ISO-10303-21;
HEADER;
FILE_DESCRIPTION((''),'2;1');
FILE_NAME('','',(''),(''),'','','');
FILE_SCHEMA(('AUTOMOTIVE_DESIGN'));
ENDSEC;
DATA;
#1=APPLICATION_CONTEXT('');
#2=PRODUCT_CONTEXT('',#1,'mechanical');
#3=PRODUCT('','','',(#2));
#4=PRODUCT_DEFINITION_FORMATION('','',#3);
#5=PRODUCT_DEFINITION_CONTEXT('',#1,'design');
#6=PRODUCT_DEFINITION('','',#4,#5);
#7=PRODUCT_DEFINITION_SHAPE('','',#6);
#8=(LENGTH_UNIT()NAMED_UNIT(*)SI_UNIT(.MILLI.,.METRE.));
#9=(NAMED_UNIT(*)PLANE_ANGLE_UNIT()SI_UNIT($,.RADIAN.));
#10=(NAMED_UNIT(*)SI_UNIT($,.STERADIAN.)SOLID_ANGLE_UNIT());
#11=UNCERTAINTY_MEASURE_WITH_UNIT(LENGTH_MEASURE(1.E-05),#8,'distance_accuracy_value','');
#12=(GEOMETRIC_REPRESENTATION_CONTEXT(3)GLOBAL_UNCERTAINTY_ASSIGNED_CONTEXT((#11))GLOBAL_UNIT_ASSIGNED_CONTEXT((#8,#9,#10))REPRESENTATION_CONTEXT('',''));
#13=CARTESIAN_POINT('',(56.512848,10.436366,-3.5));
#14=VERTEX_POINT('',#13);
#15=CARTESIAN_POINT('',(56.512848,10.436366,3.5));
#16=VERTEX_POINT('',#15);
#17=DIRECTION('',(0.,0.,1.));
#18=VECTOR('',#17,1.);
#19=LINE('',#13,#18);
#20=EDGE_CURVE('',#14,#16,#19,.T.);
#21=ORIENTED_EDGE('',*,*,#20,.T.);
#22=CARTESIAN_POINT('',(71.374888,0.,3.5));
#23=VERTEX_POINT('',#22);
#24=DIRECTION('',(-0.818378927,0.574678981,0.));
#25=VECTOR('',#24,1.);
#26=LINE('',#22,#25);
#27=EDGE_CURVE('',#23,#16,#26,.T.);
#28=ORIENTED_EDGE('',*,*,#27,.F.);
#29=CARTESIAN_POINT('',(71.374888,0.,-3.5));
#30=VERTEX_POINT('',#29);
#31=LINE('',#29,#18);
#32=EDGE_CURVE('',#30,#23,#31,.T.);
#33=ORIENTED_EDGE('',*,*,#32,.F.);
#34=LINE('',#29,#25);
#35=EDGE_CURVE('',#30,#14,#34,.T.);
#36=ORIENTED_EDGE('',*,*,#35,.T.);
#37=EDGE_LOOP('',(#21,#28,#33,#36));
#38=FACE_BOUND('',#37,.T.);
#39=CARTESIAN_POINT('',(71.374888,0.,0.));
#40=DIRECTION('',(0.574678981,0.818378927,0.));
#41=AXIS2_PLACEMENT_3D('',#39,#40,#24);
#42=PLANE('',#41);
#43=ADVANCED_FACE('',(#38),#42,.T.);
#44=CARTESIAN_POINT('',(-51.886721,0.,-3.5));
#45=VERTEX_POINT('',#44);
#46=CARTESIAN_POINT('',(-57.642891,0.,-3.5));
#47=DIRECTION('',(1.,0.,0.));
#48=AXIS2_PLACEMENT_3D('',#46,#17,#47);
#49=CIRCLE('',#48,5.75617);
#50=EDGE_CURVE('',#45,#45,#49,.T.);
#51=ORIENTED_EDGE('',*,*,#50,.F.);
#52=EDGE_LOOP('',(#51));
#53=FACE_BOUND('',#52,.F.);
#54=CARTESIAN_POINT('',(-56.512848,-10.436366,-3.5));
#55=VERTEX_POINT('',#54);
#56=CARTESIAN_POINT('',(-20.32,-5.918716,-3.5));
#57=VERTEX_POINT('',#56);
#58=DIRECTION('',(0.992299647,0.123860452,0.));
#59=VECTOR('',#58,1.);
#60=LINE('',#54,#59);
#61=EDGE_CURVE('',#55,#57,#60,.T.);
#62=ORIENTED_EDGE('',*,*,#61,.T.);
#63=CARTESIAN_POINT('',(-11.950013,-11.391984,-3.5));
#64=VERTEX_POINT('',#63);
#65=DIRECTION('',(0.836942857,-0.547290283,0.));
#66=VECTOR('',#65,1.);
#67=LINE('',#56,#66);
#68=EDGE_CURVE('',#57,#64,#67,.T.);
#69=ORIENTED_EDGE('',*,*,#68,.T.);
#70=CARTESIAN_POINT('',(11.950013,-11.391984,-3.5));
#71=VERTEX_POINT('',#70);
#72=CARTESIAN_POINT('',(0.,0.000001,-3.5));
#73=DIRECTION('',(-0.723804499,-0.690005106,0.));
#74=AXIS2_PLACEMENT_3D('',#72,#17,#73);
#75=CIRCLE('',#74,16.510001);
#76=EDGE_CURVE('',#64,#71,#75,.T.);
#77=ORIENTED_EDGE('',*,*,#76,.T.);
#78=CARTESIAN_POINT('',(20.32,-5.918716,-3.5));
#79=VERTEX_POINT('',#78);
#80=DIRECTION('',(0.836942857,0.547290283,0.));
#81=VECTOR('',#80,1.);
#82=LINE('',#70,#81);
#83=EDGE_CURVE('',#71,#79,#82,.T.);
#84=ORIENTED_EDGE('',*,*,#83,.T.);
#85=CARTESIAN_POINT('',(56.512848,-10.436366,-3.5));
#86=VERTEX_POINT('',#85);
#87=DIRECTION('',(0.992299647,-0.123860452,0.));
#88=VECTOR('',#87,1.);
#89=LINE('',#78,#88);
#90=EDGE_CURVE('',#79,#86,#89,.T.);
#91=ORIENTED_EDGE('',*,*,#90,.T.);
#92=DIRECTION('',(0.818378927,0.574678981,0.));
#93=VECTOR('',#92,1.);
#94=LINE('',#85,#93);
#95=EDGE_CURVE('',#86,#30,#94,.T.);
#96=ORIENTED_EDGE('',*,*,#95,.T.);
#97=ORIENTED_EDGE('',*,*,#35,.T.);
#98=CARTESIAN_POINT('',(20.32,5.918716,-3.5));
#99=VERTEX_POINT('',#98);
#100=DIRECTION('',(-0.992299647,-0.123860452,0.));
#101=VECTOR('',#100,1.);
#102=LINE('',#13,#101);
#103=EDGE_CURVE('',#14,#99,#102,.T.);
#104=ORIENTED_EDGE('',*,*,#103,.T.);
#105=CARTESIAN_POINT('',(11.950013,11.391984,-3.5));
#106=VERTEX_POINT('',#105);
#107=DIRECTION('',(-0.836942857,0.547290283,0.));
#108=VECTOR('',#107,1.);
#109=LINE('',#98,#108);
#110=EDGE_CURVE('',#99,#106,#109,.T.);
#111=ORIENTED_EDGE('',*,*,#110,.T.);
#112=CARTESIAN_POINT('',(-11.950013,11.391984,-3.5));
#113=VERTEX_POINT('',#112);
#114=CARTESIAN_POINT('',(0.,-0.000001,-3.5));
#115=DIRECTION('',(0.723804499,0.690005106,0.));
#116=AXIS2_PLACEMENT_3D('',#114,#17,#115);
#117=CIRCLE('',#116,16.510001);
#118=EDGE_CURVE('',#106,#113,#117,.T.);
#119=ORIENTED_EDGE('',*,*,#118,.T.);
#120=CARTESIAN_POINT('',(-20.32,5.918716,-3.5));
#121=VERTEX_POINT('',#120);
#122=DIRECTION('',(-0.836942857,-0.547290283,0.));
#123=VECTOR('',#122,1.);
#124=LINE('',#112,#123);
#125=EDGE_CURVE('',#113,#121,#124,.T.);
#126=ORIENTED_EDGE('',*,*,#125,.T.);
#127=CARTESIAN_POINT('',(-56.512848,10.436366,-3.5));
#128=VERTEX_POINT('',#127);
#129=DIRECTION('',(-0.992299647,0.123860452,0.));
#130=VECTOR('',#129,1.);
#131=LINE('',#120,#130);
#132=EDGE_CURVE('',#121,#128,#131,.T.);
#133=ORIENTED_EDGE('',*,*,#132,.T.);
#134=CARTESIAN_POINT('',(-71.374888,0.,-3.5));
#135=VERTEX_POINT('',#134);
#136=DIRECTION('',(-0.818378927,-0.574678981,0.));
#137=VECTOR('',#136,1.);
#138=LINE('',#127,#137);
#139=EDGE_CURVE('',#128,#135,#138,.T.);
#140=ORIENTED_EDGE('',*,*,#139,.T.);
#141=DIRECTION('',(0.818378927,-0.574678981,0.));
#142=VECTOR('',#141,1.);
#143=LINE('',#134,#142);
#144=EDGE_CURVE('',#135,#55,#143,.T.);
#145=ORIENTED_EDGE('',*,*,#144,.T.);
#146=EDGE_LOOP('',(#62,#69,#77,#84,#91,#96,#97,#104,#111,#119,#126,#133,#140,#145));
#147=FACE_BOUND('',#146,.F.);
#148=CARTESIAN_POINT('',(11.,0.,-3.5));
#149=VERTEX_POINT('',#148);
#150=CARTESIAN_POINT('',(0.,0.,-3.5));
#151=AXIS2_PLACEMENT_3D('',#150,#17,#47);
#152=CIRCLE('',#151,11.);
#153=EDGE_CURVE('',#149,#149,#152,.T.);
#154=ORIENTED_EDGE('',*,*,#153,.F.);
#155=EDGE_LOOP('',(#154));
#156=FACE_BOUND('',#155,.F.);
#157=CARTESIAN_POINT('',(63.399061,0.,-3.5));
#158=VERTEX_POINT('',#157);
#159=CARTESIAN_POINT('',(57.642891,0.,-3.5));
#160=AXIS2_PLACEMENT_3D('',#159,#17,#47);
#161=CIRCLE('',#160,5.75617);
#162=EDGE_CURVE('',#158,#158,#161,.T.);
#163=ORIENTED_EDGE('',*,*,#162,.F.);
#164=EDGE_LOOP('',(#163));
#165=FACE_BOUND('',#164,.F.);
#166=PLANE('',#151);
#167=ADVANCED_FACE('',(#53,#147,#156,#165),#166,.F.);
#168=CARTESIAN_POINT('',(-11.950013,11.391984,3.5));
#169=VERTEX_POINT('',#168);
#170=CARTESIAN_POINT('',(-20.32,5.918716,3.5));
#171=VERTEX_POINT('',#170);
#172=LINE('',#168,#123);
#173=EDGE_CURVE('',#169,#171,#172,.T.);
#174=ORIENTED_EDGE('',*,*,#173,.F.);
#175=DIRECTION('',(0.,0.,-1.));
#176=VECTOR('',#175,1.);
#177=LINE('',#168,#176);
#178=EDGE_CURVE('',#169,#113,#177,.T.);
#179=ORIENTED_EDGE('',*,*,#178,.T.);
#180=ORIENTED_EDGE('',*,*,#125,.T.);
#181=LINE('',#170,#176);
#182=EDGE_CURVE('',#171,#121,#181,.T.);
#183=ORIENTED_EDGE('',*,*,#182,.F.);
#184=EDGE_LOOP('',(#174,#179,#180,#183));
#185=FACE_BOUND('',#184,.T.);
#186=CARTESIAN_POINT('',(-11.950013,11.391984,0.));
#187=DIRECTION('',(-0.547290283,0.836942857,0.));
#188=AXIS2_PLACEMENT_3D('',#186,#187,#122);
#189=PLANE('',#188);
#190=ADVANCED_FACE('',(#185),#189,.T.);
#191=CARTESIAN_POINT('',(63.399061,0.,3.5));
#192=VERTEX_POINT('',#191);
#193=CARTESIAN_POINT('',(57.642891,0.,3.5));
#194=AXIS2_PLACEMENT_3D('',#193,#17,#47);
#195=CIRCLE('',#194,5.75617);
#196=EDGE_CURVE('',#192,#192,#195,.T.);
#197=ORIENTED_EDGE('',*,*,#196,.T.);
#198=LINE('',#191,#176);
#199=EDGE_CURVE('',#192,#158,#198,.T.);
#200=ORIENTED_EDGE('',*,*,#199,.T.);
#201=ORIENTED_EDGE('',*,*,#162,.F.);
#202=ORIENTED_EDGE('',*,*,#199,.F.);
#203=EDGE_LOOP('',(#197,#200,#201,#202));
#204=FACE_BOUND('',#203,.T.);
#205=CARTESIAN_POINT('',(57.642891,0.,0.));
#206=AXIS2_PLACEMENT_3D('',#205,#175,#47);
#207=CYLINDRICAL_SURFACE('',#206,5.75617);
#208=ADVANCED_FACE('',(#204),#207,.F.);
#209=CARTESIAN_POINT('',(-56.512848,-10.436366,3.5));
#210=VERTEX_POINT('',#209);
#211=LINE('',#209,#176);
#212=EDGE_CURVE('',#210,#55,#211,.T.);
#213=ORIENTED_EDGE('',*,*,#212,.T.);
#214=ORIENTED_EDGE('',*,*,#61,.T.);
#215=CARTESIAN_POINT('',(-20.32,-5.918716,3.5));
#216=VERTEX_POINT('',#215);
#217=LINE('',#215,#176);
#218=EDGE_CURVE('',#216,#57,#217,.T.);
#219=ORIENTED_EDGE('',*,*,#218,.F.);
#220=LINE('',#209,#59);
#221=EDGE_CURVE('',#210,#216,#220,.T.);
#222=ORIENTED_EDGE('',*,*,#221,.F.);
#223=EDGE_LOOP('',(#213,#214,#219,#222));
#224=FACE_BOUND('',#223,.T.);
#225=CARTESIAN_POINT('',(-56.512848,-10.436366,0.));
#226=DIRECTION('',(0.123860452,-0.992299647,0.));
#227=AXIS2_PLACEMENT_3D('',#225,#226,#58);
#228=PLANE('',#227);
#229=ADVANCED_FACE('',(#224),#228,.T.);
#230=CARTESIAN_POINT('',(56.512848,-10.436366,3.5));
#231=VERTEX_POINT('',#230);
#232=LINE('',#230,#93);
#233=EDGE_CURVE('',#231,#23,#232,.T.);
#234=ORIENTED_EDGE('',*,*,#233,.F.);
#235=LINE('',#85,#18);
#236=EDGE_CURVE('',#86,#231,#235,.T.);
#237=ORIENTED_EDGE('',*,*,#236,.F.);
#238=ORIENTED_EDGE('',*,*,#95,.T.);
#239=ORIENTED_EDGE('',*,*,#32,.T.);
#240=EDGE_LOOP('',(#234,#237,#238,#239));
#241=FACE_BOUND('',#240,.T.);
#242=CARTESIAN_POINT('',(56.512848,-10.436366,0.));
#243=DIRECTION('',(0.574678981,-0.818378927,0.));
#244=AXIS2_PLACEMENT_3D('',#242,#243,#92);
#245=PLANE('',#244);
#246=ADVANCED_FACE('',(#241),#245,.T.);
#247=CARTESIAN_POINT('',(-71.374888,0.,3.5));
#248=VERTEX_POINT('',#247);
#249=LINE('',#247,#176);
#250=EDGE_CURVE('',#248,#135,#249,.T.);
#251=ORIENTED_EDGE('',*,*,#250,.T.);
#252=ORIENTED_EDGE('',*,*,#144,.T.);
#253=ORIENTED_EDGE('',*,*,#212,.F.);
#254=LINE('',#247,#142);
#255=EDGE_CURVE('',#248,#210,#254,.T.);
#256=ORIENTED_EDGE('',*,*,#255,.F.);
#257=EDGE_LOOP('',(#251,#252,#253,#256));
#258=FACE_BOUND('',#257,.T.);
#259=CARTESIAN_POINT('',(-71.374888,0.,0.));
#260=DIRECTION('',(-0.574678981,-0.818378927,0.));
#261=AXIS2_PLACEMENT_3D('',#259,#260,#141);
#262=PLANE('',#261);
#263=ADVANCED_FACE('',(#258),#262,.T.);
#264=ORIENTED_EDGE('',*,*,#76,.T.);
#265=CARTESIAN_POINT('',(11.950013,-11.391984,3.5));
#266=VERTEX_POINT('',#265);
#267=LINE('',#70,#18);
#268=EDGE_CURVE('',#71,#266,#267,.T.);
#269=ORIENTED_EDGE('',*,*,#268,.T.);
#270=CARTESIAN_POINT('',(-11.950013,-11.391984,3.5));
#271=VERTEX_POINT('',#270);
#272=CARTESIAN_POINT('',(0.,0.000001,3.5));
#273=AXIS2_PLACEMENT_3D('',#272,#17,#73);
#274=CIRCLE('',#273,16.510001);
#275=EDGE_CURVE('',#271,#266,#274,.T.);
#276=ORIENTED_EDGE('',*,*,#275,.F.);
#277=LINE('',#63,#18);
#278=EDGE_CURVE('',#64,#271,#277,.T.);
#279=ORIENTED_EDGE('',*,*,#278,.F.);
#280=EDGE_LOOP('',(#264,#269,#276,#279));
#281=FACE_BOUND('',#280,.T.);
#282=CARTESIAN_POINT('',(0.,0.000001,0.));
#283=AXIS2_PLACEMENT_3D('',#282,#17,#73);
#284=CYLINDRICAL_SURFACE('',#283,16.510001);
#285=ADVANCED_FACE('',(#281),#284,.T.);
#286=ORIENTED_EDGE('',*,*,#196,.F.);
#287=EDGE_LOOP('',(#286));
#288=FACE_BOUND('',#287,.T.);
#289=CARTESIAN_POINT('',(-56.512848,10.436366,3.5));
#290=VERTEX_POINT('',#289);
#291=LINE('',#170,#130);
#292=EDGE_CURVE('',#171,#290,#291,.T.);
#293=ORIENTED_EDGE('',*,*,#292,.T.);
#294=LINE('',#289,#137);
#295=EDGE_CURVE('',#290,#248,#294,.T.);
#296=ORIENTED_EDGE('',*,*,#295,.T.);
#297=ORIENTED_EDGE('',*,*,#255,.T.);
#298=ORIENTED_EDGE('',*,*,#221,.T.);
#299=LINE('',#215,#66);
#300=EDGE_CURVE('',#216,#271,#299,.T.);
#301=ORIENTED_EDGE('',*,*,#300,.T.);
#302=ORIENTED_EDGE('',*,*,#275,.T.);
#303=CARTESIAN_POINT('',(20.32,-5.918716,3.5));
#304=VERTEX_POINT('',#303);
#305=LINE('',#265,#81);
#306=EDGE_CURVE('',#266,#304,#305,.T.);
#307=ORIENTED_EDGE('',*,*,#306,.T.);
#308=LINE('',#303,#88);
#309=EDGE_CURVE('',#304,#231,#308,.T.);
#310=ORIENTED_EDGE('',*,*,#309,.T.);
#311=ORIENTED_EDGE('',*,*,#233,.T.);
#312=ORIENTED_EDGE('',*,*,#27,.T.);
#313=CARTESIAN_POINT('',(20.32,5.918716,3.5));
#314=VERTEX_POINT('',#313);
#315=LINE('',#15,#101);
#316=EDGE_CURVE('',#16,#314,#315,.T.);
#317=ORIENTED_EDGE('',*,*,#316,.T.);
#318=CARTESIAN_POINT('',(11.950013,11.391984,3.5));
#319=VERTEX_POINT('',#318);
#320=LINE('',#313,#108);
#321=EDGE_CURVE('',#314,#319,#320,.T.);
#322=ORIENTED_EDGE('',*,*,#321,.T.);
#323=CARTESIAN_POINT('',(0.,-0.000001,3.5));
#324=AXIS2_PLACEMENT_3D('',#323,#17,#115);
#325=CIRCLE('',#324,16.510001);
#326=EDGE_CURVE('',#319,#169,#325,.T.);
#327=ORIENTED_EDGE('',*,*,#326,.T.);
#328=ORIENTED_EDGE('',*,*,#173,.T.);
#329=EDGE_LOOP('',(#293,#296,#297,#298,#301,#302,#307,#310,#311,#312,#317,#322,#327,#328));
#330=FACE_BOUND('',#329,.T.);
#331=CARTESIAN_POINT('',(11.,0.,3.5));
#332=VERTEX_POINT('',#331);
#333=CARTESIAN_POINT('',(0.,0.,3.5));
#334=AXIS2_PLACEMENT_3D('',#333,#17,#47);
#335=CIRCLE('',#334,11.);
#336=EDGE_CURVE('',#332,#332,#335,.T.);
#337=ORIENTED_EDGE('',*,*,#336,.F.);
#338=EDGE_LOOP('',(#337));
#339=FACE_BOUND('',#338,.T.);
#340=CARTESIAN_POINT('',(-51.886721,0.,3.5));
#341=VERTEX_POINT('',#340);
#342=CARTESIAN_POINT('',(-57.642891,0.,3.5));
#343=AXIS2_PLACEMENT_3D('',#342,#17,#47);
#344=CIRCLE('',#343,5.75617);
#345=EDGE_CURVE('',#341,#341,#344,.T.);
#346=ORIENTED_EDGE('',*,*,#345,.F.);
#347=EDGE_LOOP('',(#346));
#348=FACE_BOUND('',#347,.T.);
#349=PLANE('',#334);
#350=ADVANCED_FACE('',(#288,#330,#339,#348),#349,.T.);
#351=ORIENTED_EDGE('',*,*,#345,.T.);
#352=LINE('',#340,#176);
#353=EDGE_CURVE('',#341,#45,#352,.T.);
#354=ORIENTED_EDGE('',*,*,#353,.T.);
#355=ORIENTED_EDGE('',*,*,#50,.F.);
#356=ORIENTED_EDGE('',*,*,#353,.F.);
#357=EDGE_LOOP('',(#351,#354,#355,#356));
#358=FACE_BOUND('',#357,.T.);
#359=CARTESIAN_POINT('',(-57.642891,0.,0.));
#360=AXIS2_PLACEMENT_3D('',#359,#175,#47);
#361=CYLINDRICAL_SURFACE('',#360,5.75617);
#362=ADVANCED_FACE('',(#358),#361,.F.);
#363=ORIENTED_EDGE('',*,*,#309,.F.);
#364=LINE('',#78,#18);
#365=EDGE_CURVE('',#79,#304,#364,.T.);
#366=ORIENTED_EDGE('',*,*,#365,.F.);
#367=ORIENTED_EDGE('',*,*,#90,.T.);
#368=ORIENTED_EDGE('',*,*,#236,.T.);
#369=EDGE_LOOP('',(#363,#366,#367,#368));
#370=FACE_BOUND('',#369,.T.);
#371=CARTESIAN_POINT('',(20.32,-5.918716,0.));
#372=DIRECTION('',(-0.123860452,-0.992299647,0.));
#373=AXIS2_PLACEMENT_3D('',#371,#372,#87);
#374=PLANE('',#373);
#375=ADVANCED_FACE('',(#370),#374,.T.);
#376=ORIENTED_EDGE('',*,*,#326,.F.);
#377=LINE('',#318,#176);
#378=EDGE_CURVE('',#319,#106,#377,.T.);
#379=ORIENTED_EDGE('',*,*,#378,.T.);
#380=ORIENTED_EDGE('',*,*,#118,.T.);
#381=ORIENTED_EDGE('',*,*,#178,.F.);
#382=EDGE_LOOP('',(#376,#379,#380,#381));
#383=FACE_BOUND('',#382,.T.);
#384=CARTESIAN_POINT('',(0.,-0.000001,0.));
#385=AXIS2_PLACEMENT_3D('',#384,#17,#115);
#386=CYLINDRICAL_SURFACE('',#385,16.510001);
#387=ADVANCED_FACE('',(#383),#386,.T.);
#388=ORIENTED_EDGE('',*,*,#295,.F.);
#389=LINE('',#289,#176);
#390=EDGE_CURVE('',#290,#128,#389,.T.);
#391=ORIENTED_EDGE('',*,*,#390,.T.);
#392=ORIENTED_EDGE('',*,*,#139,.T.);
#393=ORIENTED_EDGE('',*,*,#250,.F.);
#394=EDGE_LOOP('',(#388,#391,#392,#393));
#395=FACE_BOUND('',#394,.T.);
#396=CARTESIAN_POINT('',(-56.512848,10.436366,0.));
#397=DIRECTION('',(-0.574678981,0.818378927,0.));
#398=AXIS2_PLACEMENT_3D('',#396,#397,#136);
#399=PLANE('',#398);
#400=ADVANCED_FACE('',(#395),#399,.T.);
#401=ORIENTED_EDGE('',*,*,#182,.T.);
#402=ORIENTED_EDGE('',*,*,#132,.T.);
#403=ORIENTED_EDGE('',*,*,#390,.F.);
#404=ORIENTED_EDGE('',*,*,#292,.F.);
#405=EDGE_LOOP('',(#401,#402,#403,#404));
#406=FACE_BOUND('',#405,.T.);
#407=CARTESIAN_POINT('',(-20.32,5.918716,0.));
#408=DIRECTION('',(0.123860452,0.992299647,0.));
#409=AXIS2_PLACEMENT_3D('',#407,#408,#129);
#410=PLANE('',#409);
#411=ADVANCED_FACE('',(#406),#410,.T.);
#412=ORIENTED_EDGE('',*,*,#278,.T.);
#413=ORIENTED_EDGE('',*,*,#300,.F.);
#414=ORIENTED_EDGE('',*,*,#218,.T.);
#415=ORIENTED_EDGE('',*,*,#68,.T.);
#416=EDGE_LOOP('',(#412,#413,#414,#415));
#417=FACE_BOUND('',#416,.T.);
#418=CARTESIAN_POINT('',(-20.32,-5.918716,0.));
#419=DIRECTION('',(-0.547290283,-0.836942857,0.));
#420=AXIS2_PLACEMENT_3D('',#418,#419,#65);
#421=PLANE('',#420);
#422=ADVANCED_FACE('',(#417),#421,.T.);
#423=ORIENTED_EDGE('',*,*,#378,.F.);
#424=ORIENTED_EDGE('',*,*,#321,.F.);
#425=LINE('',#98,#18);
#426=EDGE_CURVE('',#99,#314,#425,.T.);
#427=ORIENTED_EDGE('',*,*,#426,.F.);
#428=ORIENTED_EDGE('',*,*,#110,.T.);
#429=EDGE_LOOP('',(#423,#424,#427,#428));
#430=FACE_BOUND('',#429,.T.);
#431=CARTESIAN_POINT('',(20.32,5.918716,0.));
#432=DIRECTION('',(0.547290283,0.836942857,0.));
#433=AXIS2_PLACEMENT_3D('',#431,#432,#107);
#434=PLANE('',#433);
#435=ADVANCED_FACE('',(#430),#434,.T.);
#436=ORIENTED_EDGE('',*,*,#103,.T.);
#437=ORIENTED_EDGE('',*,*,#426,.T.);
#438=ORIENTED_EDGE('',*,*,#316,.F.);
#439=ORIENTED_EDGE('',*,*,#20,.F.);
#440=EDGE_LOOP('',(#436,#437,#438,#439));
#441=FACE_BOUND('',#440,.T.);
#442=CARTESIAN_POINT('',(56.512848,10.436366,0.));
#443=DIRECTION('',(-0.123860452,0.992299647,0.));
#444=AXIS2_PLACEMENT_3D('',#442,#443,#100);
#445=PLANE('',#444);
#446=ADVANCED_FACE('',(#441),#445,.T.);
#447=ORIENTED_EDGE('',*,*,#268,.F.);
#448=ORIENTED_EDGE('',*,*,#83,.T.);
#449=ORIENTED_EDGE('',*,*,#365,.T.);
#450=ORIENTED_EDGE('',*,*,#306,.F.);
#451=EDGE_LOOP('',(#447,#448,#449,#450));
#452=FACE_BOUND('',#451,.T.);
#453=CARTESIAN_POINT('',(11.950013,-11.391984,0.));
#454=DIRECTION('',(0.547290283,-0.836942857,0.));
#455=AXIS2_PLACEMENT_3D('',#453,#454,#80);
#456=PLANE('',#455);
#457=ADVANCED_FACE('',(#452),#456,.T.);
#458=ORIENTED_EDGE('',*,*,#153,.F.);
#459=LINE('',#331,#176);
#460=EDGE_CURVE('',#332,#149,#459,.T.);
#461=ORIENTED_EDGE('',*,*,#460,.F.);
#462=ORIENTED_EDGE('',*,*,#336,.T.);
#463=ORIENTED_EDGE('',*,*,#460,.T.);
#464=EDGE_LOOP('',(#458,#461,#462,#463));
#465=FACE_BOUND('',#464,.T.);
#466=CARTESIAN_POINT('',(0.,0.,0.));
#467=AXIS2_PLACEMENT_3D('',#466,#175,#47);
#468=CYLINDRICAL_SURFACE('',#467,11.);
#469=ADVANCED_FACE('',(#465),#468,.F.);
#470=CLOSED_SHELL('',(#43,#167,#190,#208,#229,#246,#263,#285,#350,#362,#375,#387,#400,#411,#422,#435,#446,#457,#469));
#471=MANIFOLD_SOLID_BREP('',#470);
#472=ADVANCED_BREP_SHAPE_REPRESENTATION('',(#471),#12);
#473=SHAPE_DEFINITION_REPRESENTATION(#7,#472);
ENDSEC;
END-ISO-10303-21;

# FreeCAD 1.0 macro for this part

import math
import FreeCAD as App
import Part
import Sketcher
from FreeCAD import Vector

doc = App.newDocument("Part")
body = doc.addObject("PartDesign::Body", "Body")

# Sketch on XY plane
sketch1 = body.newObject("Sketcher::SketchObject", "Sketch")
sketch1.AttachmentSupport = (doc.getObject("XY_Plane"), [""])
sketch1.MapMode = "FlatFace"
sketch1.addGeometry([
    Part.LineSegment(Vector(-20, -6, 0), Vector(-12, -11, 0)),  # 0
    Part.ArcOfCircle(Part.Circle(Vector(0, 0, 0), Vector(0, 0, 1), 17), math.radians(-136), math.radians(-44)),  # 1
    Part.LineSegment(Vector(12, -11, 0), Vector(20, -6, 0)),  # 2
    Part.LineSegment(Vector(20, -6, 0), Vector(57, -10, 0)),  # 3
    Part.LineSegment(Vector(57, -10, 0), Vector(71, 0, 0)),  # 4
    Part.LineSegment(Vector(71, 0, 0), Vector(57, 10, 0)),  # 5
    Part.LineSegment(Vector(57, 10, 0), Vector(20, 6, 0)),  # 6
    Part.LineSegment(Vector(20, 6, 0), Vector(12, 11, 0)),  # 7
    Part.ArcOfCircle(Part.Circle(Vector(0, 0, 0), Vector(0, 0, 1), 17), math.radians(44), math.radians(136)),  # 8
    Part.LineSegment(Vector(-12, 11, 0), Vector(-20, 6, 0)),  # 9
    Part.LineSegment(Vector(-20, 6, 0), Vector(-57, 10, 0)),  # 10
    Part.LineSegment(Vector(-57, 10, 0), Vector(-71, 0, 0)),  # 11
    Part.LineSegment(Vector(-71, 0, 0), Vector(-57, -10, 0)),  # 12
    Part.LineSegment(Vector(-57, -10, 0), Vector(-20, -6, 0)),  # 13
    Part.Circle(Vector(-58, 0, 0), Vector(0, 0, 1), 6),  # 14
    Part.Circle(Vector(0, 0, 0), Vector(0, 0, 1), 11),  # 15
    Part.Circle(Vector(58, 0, 0), Vector(0, 0, 1), 6),  # 16
], False)
sketch1.addConstraint([
    Sketcher.Constraint("Coincident", 0, 2, 1, 1),
    Sketcher.Constraint("Coincident", 1, 2, 2, 1),
    Sketcher.Constraint("Coincident", 2, 2, 3, 1),
    Sketcher.Constraint("Coincident", 3, 2, 4, 1),
    Sketcher.Constraint("Coincident", 4, 2, 5, 1),
    Sketcher.Constraint("Coincident", 5, 2, 6, 1),
    Sketcher.Constraint("Coincident", 6, 2, 7, 1),
    Sketcher.Constraint("Coincident", 7, 2, 8, 1),
    Sketcher.Constraint("Coincident", 8, 2, 9, 1),
    Sketcher.Constraint("Coincident", 9, 2, 10, 1),
    Sketcher.Constraint("Coincident", 10, 2, 11, 1),
    Sketcher.Constraint("Coincident", 11, 2, 12, 1),
    Sketcher.Constraint("Coincident", 12, 2, 13, 1),
    Sketcher.Constraint("Coincident", 13, 2, 0, 1),
    Sketcher.Constraint("Coincident", 1, 3, -1, 1),
    Sketcher.Constraint("Coincident", 8, 3, -1, 1),
    Sketcher.Constraint("Coincident", 15, 3, -1, 1),
    Sketcher.Constraint("Equal", 1, 8),
    Sketcher.Constraint("Equal", 14, 16),
    Sketcher.Constraint("Symmetric", 14, 3, 16, 3, -1, 1),
    Sketcher.Constraint("Symmetric", 2, 2, 9, 2, -1, 1),
    Sketcher.Constraint("Symmetric", 3, 2, 10, 2, -1, 1),
    Sketcher.Constraint("Symmetric", 4, 2, 11, 2, -1, 1),
    Sketcher.Constraint("Symmetric", 5, 2, 12, 2, -1, 1),
    Sketcher.Constraint("Symmetric", 6, 2, 13, 2, -1, 1),
    Sketcher.Constraint("Symmetric", 6, 2, 9, 2, -2),
    Sketcher.Constraint("Symmetric", 5, 2, 10, 2, -2),
    Sketcher.Constraint("PointOnObject", 14, 3, -1),
    Sketcher.Constraint("PointOnObject", 4, 2, -1),
    Sketcher.Constraint("Parallel", 0, 7),
    Sketcher.Constraint("Parallel", 2, 9),
    Sketcher.Constraint("Horizontal", 0, 2, 1, 2),
    Sketcher.Constraint("Diameter", 15, 22.0),
    Sketcher.Constraint("Radius", 1, 16.510001),
    Sketcher.Constraint("Diameter", 14, 11.51234),
    Sketcher.Constraint("DistanceX", -1, 1, 2, 2, 20.32),
    Sketcher.Constraint("DistanceY", 1, 2, 6, 2, 17.3107),
    Sketcher.Constraint("Distance", 3, 36.473708),
    Sketcher.Constraint("Distance", 4, 18.160341),
    Sketcher.Constraint("DistanceX", 14, 3, -1, 1, 57.642891),
    Sketcher.Constraint("DistanceX", -1, 1, 4, 2, 71.374888),
    Sketcher.Constraint("DistanceX", 1, 2, 16, 3, 45.692878),
])
pad1 = body.newObject("PartDesign::Pad", "Pad")
pad1.Profile = sketch1
pad1.Length = 7
pad1.Midplane = True

doc.recompute()
